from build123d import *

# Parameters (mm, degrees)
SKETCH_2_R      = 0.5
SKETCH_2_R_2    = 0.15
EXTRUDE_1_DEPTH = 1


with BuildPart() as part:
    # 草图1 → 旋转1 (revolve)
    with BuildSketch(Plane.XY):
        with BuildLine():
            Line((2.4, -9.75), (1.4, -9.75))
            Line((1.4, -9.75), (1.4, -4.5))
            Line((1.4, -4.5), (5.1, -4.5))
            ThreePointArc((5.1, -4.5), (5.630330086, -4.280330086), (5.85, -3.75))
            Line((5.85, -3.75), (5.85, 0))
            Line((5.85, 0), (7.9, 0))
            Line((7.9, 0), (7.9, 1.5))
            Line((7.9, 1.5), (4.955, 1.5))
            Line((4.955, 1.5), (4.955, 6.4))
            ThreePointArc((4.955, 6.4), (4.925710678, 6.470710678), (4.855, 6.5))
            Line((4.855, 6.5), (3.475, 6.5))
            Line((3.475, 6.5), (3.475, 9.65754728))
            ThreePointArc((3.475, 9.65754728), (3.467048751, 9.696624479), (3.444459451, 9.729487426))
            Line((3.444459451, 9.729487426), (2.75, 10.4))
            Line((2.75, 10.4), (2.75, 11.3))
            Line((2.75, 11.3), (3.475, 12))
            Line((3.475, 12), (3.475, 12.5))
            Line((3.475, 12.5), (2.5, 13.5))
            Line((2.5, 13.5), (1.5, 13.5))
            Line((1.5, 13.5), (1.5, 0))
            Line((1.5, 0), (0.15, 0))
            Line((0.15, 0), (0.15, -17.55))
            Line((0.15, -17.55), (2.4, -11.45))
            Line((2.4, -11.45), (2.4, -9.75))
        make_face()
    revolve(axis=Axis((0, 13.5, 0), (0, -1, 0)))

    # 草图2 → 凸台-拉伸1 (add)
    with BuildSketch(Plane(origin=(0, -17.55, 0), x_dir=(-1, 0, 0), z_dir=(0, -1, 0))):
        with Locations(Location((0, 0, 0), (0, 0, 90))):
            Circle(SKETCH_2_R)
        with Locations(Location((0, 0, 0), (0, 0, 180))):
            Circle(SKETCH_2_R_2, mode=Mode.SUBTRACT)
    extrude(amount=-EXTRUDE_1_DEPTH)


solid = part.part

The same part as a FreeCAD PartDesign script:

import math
import FreeCAD as App
import Part
import Sketcher
from FreeCAD import Vector

doc = App.newDocument("Part")
body = doc.addObject("PartDesign::Body", "Body")

# Sketch on XY plane
sketch1 = body.newObject("Sketcher::SketchObject", "Sketch")
sketch1.AttachmentSupport = (doc.getObject("XY_Plane"), [""])
sketch1.MapMode = "FlatFace"
sketch1.addGeometry(Part.LineSegment(Vector(2.4, -9.75, 0), Vector(1.4, -9.75, 0)), False)
sketch1.addGeometry(Part.LineSegment(Vector(1.4, -9.75, 0), Vector(1.4, -4.5, 0)), False)
sketch1.addGeometry(Part.LineSegment(Vector(1.4, -4.5, 0), Vector(5.1, -4.5, 0)), False)
sketch1.addGeometry(Part.ArcOfCircle(Part.Circle(Vector(5.1, -3.75, 0), Vector(0, 0, 1), 0.75), math.radians(-90), math.radians(0)), False)
sketch1.addGeometry(Part.LineSegment(Vector(5.85, -3.75, 0), Vector(5.85, 0, 0)), False)
sketch1.addGeometry(Part.LineSegment(Vector(5.85, 0, 0), Vector(7.9, 0, 0)), False)
sketch1.addGeometry(Part.LineSegment(Vector(7.9, 0, 0), Vector(7.9, 1.5, 0)), False)
sketch1.addGeometry(Part.LineSegment(Vector(7.9, 1.5, 0), Vector(4.96, 1.5, 0)), False)
sketch1.addGeometry(Part.LineSegment(Vector(4.96, 1.5, 0), Vector(4.96, 6.4, 0)), False)
sketch1.addGeometry(Part.ArcOfCircle(Part.Circle(Vector(4.86, 6.4, 0), Vector(0, 0, 1), 0.1), math.radians(0), math.radians(90)), False)
sketch1.addGeometry(Part.LineSegment(Vector(4.86, 6.5, 0), Vector(3.48, 6.5, 0)), False)
sketch1.addGeometry(Part.LineSegment(Vector(3.48, 6.5, 0), Vector(3.48, 9.66, 0)), False)
sketch1.addGeometry(Part.ArcOfCircle(Part.Circle(Vector(3.38, 9.66, 0), Vector(0, 0, 1), 0.1), math.radians(0), math.radians(46)), False)
sketch1.addGeometry(Part.LineSegment(Vector(3.44, 9.73, 0), Vector(2.75, 10.4, 0)), False)
sketch1.addGeometry(Part.LineSegment(Vector(2.75, 10.4, 0), Vector(2.75, 11.3, 0)), False)
sketch1.addGeometry(Part.LineSegment(Vector(2.75, 11.3, 0), Vector(3.48, 12, 0)), False)
sketch1.addGeometry(Part.LineSegment(Vector(3.48, 12, 0), Vector(3.48, 12.5, 0)), False)
sketch1.addGeometry(Part.LineSegment(Vector(3.48, 12.5, 0), Vector(2.5, 13.5, 0)), False)
sketch1.addGeometry(Part.LineSegment(Vector(2.5, 13.5, 0), Vector(1.5, 13.5, 0)), False)
sketch1.addGeometry(Part.LineSegment(Vector(1.5, 13.5, 0), Vector(1.5, 0, 0)), False)
sketch1.addGeometry(Part.LineSegment(Vector(1.5, 0, 0), Vector(0.15, 0, 0)), False)
sketch1.addGeometry(Part.LineSegment(Vector(0.15, 0, 0), Vector(0.15, -17.55, 0)), False)
sketch1.addGeometry(Part.LineSegment(Vector(0.15, -17.55, 0), Vector(2.4, -11.45, 0)), False)
sketch1.addGeometry(Part.LineSegment(Vector(2.4, -11.45, 0), Vector(2.4, -9.75, 0)), False)
sketch1.addConstraint(Sketcher.Constraint("Coincident", 0, 2, 1, 1))
sketch1.addConstraint(Sketcher.Constraint("Coincident", 1, 2, 2, 1))
sketch1.addConstraint(Sketcher.Constraint("Tangent", 2, 2, 3, 1))
sketch1.addConstraint(Sketcher.Constraint("Tangent", 3, 2, 4, 1))
sketch1.addConstraint(Sketcher.Constraint("Coincident", 4, 2, 5, 1))
sketch1.addConstraint(Sketcher.Constraint("Coincident", 5, 2, 6, 1))
sketch1.addConstraint(Sketcher.Constraint("Coincident", 6, 2, 7, 1))
sketch1.addConstraint(Sketcher.Constraint("Coincident", 7, 2, 8, 1))
sketch1.addConstraint(Sketcher.Constraint("Tangent", 8, 2, 9, 1))
sketch1.addConstraint(Sketcher.Constraint("Tangent", 9, 2, 10, 1))
sketch1.addConstraint(Sketcher.Constraint("Coincident", 10, 2, 11, 1))
sketch1.addConstraint(Sketcher.Constraint("Tangent", 11, 2, 12, 1))
sketch1.addConstraint(Sketcher.Constraint("Tangent", 12, 2, 13, 1))
sketch1.addConstraint(Sketcher.Constraint("Coincident", 13, 2, 14, 1))
sketch1.addConstraint(Sketcher.Constraint("Coincident", 14, 2, 15, 1))
sketch1.addConstraint(Sketcher.Constraint("Coincident", 15, 2, 16, 1))
sketch1.addConstraint(Sketcher.Constraint("Coincident", 16, 2, 17, 1))
sketch1.addConstraint(Sketcher.Constraint("Coincident", 17, 2, 18, 1))
sketch1.addConstraint(Sketcher.Constraint("Coincident", 18, 2, 19, 1))
sketch1.addConstraint(Sketcher.Constraint("Coincident", 19, 2, 20, 1))
sketch1.addConstraint(Sketcher.Constraint("Coincident", 20, 2, 21, 1))
sketch1.addConstraint(Sketcher.Constraint("Coincident", 21, 2, 22, 1))
sketch1.addConstraint(Sketcher.Constraint("Coincident", 22, 2, 23, 1))
sketch1.addConstraint(Sketcher.Constraint("Coincident", 23, 2, 0, 1))
sketch1.addConstraint(Sketcher.Constraint("Horizontal", 0))
sketch1.addConstraint(Sketcher.Constraint("Vertical", 1))
sketch1.addConstraint(Sketcher.Constraint("Horizontal", 2))
sketch1.addConstraint(Sketcher.Constraint("Vertical", 4))
sketch1.addConstraint(Sketcher.Constraint("Horizontal", 5))
sketch1.addConstraint(Sketcher.Constraint("Vertical", 6))
sketch1.addConstraint(Sketcher.Constraint("Horizontal", 7))
sketch1.addConstraint(Sketcher.Constraint("Vertical", 8))
sketch1.addConstraint(Sketcher.Constraint("Horizontal", 10))
sketch1.addConstraint(Sketcher.Constraint("Vertical", 11))
sketch1.addConstraint(Sketcher.Constraint("Vertical", 14))
sketch1.addConstraint(Sketcher.Constraint("Vertical", 16))
sketch1.addConstraint(Sketcher.Constraint("Horizontal", 18))
sketch1.addConstraint(Sketcher.Constraint("Vertical", 19))
sketch1.addConstraint(Sketcher.Constraint("Horizontal", 20))
sketch1.addConstraint(Sketcher.Constraint("Vertical", 21))
sketch1.addConstraint(Sketcher.Constraint("Vertical", 23))
sketch1.addConstraint(Sketcher.Constraint("Equal", 9, 12))
sketch1.addConstraint(Sketcher.Constraint("PointOnObject", 4, 2, -1))
sketch1.addConstraint(Sketcher.Constraint("PointOnObject", 19, 2, -1))
sketch1.addConstraint(Sketcher.Constraint("Vertical", 11, 2, 15, 2))
sketch1.addConstraint(Sketcher.Constraint("Equal", 0, 18))
sketch1.addConstraint(Sketcher.Constraint("Radius", 9, 0.1))
sketch1.addConstraint(Sketcher.Constraint("DistanceX", 0, 2, 0, 1, 1.0))
sketch1.addConstraint(Sketcher.Constraint("Radius", 3, 0.75))
sketch1.addConstraint(Sketcher.Constraint("DistanceX", 2, 1, 2, 2, 3.7))
sketch1.addConstraint(Sketcher.Constraint("DistanceY", 6, 1, 6, 2, 1.5))
sketch1.addConstraint(Sketcher.Constraint("DistanceY", 8, 1, 8, 2, 4.9))
sketch1.addConstraint(Sketcher.Constraint("DistanceY", 14, 1, 14, 2, 0.9))
sketch1.addConstraint(Sketcher.Constraint("DistanceY", 16, 1, 16, 2, 0.5))
sketch1.addConstraint(Sketcher.Constraint("DistanceY", 19, 2, 19, 1, 13.5))
sketch1.addConstraint(Sketcher.Constraint("DistanceY", 23, 1, 23, 2, 1.7))
sketch1.addConstraint(Sketcher.Constraint("DistanceY", -1, 1, 15, 2, 12.0))
sketch1.addConstraint(Sketcher.Constraint("DistanceY", 0, 2, 3, 3, 6.0))
sketch1.addConstraint(Sketcher.Constraint("DistanceX", 5, 1, 5, 2, 2.05))
sketch1.addConstraint(Sketcher.Constraint("DistanceX", 10, 2, 10, 1, 1.38))
sketch1.addConstraint(Sketcher.Constraint("DistanceX", 20, 2, 20, 1, 1.35))
sketch1.addConstraint(Sketcher.Constraint("DistanceY", 4, 1, 4, 2, 3.75))
sketch1.addConstraint(Sketcher.Constraint("DistanceY", 21, 2, 21, 1, 17.55))
sketch1.addConstraint(Sketcher.Constraint("DistanceX", -1, 1, 3, 3, 5.1))
sketch1.addConstraint(Sketcher.Constraint("DistanceY", -1, 1, 13, 2, 10.4))
sketch1.addConstraint(Sketcher.Constraint("DistanceX", -1, 1, 17, 2, 2.5))
sketch1.addConstraint(Sketcher.Constraint("DistanceX", 7, 2, 7, 1, 2.945))
sketch1.addConstraint(Sketcher.Constraint("DistanceX", -1, 1, 13, 2, 2.75))
sketch1.addConstraint(Sketcher.Constraint("Distance", 13, 0.965329))
revolution = body.newObject("PartDesign::Revolution", "Revolution")
revolution.Profile = sketch1
revolution.ReferenceAxis = (sketch1, ["V_Axis"])
revolution.Angle = 360

# Sketch on XZ plane
sketch2 = body.newObject("Sketcher::SketchObject", "Sketch001")
sketch2.AttachmentSupport = (doc.getObject("XZ_Plane"), [""])
sketch2.MapMode = "FlatFace"
sketch2.AttachmentOffset = App.Placement(Vector(0, 0, 17.55), App.Rotation())
sketch2.addGeometry(Part.Circle(Vector(0, 0, 0), Vector(0, 0, 1), 0.5), False)
sketch2.addGeometry(Part.Circle(Vector(0, 0, 0), Vector(0, 0, 1), 0.15), False)
sketch2.addConstraint(Sketcher.Constraint("Coincident", 0, 3, -1, 1))
sketch2.addConstraint(Sketcher.Constraint("Coincident", 1, 3, -1, 1))
sketch2.addConstraint(Sketcher.Constraint("Diameter", 0, 1.0))
sketch2.addConstraint(Sketcher.Constraint("Diameter", 1, 0.3))
pad1 = body.newObject("PartDesign::Pad", "Pad")
pad1.Profile = sketch2
pad1.Length = 1
pad1.Reversed = True

doc.recompute()
